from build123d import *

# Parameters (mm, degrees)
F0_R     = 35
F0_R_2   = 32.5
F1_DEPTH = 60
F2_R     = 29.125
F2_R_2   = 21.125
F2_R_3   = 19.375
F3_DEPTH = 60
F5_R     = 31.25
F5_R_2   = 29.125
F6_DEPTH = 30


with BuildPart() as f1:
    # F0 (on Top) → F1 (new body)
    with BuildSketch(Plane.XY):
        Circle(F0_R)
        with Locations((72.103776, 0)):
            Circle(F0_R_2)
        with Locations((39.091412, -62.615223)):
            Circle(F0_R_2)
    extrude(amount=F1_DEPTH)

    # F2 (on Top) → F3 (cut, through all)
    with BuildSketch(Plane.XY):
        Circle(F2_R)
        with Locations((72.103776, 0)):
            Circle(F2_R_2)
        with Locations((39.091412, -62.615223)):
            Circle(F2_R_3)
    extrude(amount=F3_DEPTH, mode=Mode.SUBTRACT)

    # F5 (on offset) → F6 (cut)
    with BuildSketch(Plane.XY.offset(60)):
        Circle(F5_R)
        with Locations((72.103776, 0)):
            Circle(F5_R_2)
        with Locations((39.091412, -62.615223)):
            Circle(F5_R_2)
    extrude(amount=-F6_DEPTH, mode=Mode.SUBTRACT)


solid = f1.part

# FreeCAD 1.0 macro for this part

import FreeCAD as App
import Part
import Sketcher
from FreeCAD import Vector
Q = App.Units.Quantity

doc = App.newDocument("Part")
params = doc.addObject("Spreadsheet::Sheet", "Params")
for row, (alias, value) in enumerate([
    ("sketch1_diameter", "70 mm"),
    ("sketch1_diameter2", "65 mm"),
    ("pad1_length", "60 mm"),
    ("sketch2_diameter", "58.25 mm"),
    ("sketch2_diameter2", "42.25 mm"),
    ("sketch2_diameter3", "38.75 mm"),
    ("sketch3_diameter", "62.5 mm"),
    ("sketch3_diameter2", "58.25 mm"),
    ("pocket2_length", "30 mm"),
], start=1):
    params.set(f"A{row}", alias)
    params.set(f"B{row}", "=" + value)
    params.setAlias(f"B{row}", alias)

body = doc.addObject("PartDesign::Body", "Body")
body.AllowCompound = True

# Sketch on XY plane
sketch1 = doc.addObject("Sketcher::SketchObject", "Sketch")
body.addObject(sketch1)
sketch1.AttachmentSupport = (doc.XY_Plane, [""])
sketch1.MapMode = "FlatFace"
sketch1.addGeometry([
    Part.Circle(Vector(0, 0, 0), Vector(0, 0, 1), 35),
    Part.Circle(Vector(72, 0, 0), Vector(0, 0, 1), 32),
    Part.Circle(Vector(39, -63, 0), Vector(0, 0, 1), 32),
], False)
sketch1.addConstraint([
    Sketcher.Constraint("Coincident", 0, 3, -1, 1),
    Sketcher.Constraint("Equal", 1, 2),
    Sketcher.Constraint("PointOnObject", 1, 3, -1),
    Sketcher.Constraint("Diameter", 0, Q("70 mm")),
    Sketcher.Constraint("Diameter", 1, Q("65 mm")),
    Sketcher.Constraint("DistanceX", -1, 1, 2, 3, Q("39.091412 mm")),
    Sketcher.Constraint("DistanceX", -1, 1, 1, 3, Q("72.103776 mm")),
    Sketcher.Constraint("DistanceY", 2, 3, -1, 1, Q("62.615223 mm")),
])
sketch1.setExpression("Constraints[3]", "Params.sketch1_diameter")
sketch1.setExpression("Constraints[4]", "Params.sketch1_diameter2")
pad1 = doc.addObject("PartDesign::Pad", "Pad")
body.addObject(pad1)
pad1.Profile = sketch1
pad1.setExpression("Length", "Params.pad1_length")

# Sketch on XY plane
sketch2 = doc.addObject("Sketcher::SketchObject", "Sketch001")
body.addObject(sketch2)
sketch2.AttachmentSupport = (doc.XY_Plane, [""])
sketch2.MapMode = "FlatFace"
sketch2.addGeometry([
    Part.Circle(Vector(0, 0, 0), Vector(0, 0, 1), 29),
    Part.Circle(Vector(72, 0, 0), Vector(0, 0, 1), 21),
    Part.Circle(Vector(39, -63, 0), Vector(0, 0, 1), 19),
], False)
sketch2.addConstraint([
    Sketcher.Constraint("Coincident", 0, 3, -1, 1),
    Sketcher.Constraint("PointOnObject", 1, 3, -1),
    Sketcher.Constraint("Diameter", 0, Q("58.25 mm")),
    Sketcher.Constraint("Diameter", 1, Q("42.25 mm")),
    Sketcher.Constraint("Diameter", 2, Q("38.75 mm")),
    Sketcher.Constraint("DistanceX", -1, 1, 2, 3, Q("39.091412 mm")),
    Sketcher.Constraint("DistanceX", -1, 1, 1, 3, Q("72.103776 mm")),
    Sketcher.Constraint("DistanceY", 2, 3, -1, 1, Q("62.615223 mm")),
])
sketch2.setExpression("Constraints[2]", "Params.sketch2_diameter")
sketch2.setExpression("Constraints[3]", "Params.sketch2_diameter2")
sketch2.setExpression("Constraints[4]", "Params.sketch2_diameter3")
pocket1 = doc.addObject("PartDesign::Pocket", "Pocket")
body.addObject(pocket1)
pocket1.Profile = sketch2
pocket1.Type = "ThroughAll"
pocket1.Reversed = True

# Sketch on XY plane
sketch3 = doc.addObject("Sketcher::SketchObject", "Sketch002")
body.addObject(sketch3)
sketch3.AttachmentSupport = (doc.XY_Plane, [""])
sketch3.MapMode = "FlatFace"
sketch3.AttachmentOffset = App.Placement(Vector(0, 0, 60), App.Rotation())
sketch3.addGeometry([
    Part.Circle(Vector(0, 0, 0), Vector(0, 0, 1), 31),
    Part.Circle(Vector(72, 0, 0), Vector(0, 0, 1), 29),
    Part.Circle(Vector(39, -63, 0), Vector(0, 0, 1), 29),
], False)
sketch3.addConstraint([
    Sketcher.Constraint("Coincident", 0, 3, -1, 1),
    Sketcher.Constraint("Equal", 1, 2),
    Sketcher.Constraint("PointOnObject", 1, 3, -1),
    Sketcher.Constraint("Diameter", 0, Q("62.5 mm")),
    Sketcher.Constraint("Diameter", 1, Q("58.25 mm")),
    Sketcher.Constraint("DistanceX", -1, 1, 2, 3, Q("39.091412 mm")),
    Sketcher.Constraint("DistanceX", -1, 1, 1, 3, Q("72.103776 mm")),
    Sketcher.Constraint("DistanceY", 2, 3, -1, 1, Q("62.615223 mm")),
])
sketch3.setExpression("Constraints[3]", "Params.sketch3_diameter")
sketch3.setExpression("Constraints[4]", "Params.sketch3_diameter2")
pocket2 = doc.addObject("PartDesign::Pocket", "Pocket001")
body.addObject(pocket2)
pocket2.Profile = sketch3
pocket2.setExpression("Length", "Params.pocket2_length")

doc.recompute()
